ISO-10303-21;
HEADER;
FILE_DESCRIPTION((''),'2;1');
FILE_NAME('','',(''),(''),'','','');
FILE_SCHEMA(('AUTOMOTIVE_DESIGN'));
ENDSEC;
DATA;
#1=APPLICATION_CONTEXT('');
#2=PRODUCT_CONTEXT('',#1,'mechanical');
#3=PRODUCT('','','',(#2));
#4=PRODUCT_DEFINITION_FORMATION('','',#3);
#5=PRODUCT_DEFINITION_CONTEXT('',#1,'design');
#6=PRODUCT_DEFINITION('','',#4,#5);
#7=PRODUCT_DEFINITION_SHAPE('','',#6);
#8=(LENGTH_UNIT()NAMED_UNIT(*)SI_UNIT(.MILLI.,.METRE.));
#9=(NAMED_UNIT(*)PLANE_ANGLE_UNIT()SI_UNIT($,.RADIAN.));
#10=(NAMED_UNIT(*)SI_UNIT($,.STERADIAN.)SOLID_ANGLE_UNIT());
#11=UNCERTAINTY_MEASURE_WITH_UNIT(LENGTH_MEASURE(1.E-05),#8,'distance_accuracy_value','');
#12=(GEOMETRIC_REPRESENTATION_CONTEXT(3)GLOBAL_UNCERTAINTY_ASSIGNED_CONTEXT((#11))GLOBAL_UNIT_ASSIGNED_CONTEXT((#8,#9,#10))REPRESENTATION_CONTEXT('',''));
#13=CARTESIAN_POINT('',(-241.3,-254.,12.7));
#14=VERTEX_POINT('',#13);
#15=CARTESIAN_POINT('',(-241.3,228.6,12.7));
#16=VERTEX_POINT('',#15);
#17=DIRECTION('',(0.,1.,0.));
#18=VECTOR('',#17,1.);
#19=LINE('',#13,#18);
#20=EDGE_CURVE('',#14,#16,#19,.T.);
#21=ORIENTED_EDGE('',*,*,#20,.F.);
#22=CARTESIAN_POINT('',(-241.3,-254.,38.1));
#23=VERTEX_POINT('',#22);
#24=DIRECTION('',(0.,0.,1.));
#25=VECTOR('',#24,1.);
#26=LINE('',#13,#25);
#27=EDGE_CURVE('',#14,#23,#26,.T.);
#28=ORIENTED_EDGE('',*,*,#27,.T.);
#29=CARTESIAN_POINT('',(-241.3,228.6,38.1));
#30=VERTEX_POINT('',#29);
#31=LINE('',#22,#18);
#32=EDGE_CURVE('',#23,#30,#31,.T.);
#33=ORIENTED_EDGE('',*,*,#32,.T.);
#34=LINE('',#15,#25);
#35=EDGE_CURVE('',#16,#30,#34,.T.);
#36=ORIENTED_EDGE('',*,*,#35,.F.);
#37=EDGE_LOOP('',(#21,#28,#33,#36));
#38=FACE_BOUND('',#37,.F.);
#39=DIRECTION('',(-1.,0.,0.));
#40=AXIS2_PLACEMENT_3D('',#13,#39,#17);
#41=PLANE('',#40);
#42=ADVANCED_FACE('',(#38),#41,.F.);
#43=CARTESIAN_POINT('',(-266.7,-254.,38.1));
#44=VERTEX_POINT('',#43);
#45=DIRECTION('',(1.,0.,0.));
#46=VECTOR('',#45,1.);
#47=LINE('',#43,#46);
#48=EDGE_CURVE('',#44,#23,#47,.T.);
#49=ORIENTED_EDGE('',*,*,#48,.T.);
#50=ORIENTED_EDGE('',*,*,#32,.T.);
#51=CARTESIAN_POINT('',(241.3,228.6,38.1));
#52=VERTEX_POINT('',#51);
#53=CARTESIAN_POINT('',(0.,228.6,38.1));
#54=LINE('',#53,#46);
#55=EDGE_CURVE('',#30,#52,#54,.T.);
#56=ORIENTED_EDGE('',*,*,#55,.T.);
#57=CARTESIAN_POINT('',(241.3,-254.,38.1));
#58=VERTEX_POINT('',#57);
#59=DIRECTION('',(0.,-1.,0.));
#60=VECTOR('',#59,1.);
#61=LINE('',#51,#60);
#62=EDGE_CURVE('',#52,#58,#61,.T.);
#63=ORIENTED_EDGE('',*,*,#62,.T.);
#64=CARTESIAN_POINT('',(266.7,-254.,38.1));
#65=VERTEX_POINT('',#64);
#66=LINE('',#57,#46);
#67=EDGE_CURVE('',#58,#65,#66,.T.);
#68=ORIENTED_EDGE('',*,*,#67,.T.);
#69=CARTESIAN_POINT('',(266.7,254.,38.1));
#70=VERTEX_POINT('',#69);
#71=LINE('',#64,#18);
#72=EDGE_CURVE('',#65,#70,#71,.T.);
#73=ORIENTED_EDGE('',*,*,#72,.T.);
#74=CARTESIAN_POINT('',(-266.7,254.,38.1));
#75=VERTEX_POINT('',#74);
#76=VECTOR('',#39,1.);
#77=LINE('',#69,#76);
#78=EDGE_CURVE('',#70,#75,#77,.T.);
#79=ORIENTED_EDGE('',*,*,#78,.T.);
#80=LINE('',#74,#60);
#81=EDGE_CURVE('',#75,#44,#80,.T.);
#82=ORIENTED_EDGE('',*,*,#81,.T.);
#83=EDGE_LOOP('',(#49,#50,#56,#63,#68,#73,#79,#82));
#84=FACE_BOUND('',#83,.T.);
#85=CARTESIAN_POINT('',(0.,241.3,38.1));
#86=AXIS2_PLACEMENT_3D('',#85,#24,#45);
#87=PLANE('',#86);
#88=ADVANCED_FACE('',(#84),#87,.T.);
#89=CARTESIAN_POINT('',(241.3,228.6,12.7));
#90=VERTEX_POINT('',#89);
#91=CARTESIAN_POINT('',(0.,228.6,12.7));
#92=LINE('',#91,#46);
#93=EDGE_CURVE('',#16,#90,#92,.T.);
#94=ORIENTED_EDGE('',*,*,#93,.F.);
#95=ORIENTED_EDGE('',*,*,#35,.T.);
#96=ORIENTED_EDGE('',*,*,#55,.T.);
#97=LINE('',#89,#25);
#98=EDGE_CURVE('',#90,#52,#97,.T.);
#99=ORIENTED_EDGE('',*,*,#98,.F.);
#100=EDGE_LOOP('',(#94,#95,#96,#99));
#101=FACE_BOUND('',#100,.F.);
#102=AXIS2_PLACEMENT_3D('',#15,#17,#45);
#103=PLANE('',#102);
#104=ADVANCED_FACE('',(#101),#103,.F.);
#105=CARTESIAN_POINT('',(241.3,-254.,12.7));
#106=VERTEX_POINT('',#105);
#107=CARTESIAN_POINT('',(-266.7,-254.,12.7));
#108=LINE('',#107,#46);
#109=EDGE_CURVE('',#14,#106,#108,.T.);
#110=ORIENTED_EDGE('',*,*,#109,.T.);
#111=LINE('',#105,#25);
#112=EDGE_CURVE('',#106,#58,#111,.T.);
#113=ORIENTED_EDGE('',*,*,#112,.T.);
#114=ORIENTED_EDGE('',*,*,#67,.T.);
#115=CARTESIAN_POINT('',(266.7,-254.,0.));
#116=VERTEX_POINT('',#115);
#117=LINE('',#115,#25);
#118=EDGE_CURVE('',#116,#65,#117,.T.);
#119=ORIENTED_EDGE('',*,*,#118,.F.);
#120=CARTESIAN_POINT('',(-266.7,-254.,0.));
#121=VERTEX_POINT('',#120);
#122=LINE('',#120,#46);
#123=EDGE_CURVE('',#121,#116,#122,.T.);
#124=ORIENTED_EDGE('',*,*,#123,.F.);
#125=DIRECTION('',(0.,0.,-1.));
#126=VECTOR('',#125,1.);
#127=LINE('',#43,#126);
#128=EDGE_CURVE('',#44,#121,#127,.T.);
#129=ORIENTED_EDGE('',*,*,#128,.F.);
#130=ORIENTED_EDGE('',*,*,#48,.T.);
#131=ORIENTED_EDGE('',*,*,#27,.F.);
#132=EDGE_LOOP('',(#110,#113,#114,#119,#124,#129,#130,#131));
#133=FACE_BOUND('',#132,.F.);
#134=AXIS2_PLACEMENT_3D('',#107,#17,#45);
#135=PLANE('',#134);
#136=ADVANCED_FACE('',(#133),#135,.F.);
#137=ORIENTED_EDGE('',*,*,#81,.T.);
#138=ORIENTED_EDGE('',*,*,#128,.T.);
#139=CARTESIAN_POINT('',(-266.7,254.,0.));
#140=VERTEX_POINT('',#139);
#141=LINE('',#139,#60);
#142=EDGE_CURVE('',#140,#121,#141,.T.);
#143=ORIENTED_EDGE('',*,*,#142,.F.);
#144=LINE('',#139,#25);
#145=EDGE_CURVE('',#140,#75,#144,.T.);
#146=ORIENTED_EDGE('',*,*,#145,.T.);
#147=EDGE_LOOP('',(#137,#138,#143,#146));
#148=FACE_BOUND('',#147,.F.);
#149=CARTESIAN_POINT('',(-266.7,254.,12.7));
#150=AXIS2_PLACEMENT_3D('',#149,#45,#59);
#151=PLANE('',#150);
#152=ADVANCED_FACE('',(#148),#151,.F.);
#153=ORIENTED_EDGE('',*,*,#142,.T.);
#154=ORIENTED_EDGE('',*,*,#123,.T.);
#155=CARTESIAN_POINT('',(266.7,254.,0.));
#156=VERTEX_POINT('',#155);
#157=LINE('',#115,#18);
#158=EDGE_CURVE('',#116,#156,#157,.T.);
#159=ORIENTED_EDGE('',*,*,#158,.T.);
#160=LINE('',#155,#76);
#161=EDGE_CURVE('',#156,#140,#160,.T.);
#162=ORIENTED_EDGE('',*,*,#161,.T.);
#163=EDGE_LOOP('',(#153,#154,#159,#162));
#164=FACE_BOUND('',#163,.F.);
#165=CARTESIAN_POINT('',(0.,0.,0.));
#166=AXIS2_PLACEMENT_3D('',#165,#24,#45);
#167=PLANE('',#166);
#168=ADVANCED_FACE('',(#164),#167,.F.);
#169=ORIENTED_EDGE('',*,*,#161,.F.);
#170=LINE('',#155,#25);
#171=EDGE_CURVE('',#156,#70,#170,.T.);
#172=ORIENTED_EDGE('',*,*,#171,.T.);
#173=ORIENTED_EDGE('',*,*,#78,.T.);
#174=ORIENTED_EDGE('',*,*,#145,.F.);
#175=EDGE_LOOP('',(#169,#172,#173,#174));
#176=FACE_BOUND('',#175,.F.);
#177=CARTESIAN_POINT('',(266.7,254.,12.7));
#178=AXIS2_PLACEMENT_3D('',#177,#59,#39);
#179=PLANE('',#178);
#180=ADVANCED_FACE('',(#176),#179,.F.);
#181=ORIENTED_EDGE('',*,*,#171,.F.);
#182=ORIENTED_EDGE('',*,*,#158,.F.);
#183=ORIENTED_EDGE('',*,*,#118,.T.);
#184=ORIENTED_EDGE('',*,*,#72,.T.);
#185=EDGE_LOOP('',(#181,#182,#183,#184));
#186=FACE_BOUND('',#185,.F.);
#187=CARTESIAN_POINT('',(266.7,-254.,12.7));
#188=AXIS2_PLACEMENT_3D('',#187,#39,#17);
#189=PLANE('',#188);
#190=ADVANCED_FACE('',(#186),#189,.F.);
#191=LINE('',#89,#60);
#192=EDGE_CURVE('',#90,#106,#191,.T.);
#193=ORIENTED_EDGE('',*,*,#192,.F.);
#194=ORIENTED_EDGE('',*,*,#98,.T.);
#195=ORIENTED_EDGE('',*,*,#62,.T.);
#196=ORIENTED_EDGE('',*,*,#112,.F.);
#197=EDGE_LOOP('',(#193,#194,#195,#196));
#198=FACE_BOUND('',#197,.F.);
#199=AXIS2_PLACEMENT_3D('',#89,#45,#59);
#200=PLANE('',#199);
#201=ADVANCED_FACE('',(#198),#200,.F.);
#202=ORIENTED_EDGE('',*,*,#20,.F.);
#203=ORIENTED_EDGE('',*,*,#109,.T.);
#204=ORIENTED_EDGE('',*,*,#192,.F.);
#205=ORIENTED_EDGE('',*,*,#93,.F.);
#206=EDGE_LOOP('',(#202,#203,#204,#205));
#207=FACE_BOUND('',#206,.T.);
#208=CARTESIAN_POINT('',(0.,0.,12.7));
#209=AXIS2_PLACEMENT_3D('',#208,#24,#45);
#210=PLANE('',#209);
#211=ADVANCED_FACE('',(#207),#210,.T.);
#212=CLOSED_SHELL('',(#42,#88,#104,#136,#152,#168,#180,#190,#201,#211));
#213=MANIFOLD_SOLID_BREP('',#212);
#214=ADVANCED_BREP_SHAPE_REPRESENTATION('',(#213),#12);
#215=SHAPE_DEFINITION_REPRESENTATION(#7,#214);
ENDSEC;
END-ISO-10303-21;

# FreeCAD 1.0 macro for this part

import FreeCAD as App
import Part
import Sketcher
Q = App.Units.Quantity


def add_polygon(sketch, points):
    """Adds a closed chain of lines whose ends are joined by coincident constraints."""
    first, n = sketch.GeometryCount, len(points)
    for a, b in zip(points, points[1:] + points[:1]):
        sketch.addGeometry(Part.LineSegment(App.Vector(*a, 0), App.Vector(*b, 0)), False)
    for i in range(n):
        sketch.addConstraint(Sketcher.Constraint("Coincident", first + i, 2, first + (i + 1) % n, 1))

doc = App.newDocument("Part")
params = doc.addObject("Spreadsheet::Sheet", "Params")
for row, (alias, value) in enumerate([
    ("sketch1_width", "21 in"),
    ("sketch1_height", "20 in"),
    ("pad1_length", "0.5 in"),
    ("sketch2_width", "19 in"),
    ("sketch2_width2", "1 in"),
    ("sketch2_height", "20 in"),
    ("pad2_length", "1 in"),
], start=1):
    params.set(f"A{row}", alias)
    params.set(f"B{row}", "=" + value)
    params.setAlias(f"B{row}", alias)

body = doc.addObject("PartDesign::Body", "Body")

# Sketch on XY plane
sketch1 = body.newObject("Sketcher::SketchObject", "Sketch")
sketch1.AttachmentSupport = (doc.getObject("XY_Plane"), [""])
sketch1.MapMode = "FlatFace"
add_polygon(sketch1, [(-267, 254), (-267, -254), (267, -254), (267, 254)])  # lines 0-3
sketch1.addConstraint([
    Sketcher.Constraint("Vertical", 0),
    Sketcher.Constraint("Horizontal", 1),
    Sketcher.Constraint("Vertical", 2),
    Sketcher.Constraint("Horizontal", 3),
    Sketcher.Constraint("Symmetric", 0, 2, 2, 2, -1, 1),
    Sketcher.Constraint("DistanceX", 1, 1, 1, 2, Q("21 in")),
    Sketcher.Constraint("DistanceY", 0, 2, 0, 1, Q("20 in")),
])
sketch1.setExpression("Constraints[9]", "Params.sketch1_width")
sketch1.setExpression("Constraints[10]", "Params.sketch1_height")
pad1 = body.newObject("PartDesign::Pad", "Pad")
pad1.Profile = sketch1
pad1.setExpression("Length", "Params.pad1_length")

# Sketch on XY plane
sketch2 = body.newObject("Sketcher::SketchObject", "Sketch001")
sketch2.AttachmentSupport = (doc.getObject("XY_Plane"), [""])
sketch2.MapMode = "FlatFace"
sketch2.AttachmentOffset = App.Placement(App.Vector(0, 0, 0.5 * 25.4), App.Rotation())
add_polygon(sketch2, [(-241, 229), (241, 229), (241, -254), (267, -254), (267, 254), (-267, 254), (-267, -254), (-241, -254)])  # lines 0-7
sketch2.addConstraint([
    Sketcher.Constraint("Horizontal", 0),
    Sketcher.Constraint("Vertical", 1),
    Sketcher.Constraint("Horizontal", 2),
    Sketcher.Constraint("Vertical", 3),
    Sketcher.Constraint("Horizontal", 4),
    Sketcher.Constraint("Vertical", 5),
    Sketcher.Constraint("Horizontal", 6),
    Sketcher.Constraint("Vertical", 7),
    Sketcher.Constraint("Symmetric", 2, 2, 4, 2, -1, 1),
    Sketcher.Constraint("Symmetric", 1, 2, 6, 2, -2),
    Sketcher.Constraint("Equal", 0, 1),
    Sketcher.Constraint("DistanceX", 0, 1, 0, 2, Q("19 in")),
    Sketcher.Constraint("DistanceX", 2, 1, 2, 2, Q("1 in")),
    Sketcher.Constraint("DistanceY", 3, 1, 3, 2, Q("20 in")),
])
sketch2.setExpression("Constraints[19]", "Params.sketch2_width")
sketch2.setExpression("Constraints[20]", "Params.sketch2_width2")
sketch2.setExpression("Constraints[21]", "Params.sketch2_height")
pad2 = body.newObject("PartDesign::Pad", "Pad001")
pad2.Profile = sketch2
pad2.setExpression("Length", "Params.pad2_length")

doc.recompute()
